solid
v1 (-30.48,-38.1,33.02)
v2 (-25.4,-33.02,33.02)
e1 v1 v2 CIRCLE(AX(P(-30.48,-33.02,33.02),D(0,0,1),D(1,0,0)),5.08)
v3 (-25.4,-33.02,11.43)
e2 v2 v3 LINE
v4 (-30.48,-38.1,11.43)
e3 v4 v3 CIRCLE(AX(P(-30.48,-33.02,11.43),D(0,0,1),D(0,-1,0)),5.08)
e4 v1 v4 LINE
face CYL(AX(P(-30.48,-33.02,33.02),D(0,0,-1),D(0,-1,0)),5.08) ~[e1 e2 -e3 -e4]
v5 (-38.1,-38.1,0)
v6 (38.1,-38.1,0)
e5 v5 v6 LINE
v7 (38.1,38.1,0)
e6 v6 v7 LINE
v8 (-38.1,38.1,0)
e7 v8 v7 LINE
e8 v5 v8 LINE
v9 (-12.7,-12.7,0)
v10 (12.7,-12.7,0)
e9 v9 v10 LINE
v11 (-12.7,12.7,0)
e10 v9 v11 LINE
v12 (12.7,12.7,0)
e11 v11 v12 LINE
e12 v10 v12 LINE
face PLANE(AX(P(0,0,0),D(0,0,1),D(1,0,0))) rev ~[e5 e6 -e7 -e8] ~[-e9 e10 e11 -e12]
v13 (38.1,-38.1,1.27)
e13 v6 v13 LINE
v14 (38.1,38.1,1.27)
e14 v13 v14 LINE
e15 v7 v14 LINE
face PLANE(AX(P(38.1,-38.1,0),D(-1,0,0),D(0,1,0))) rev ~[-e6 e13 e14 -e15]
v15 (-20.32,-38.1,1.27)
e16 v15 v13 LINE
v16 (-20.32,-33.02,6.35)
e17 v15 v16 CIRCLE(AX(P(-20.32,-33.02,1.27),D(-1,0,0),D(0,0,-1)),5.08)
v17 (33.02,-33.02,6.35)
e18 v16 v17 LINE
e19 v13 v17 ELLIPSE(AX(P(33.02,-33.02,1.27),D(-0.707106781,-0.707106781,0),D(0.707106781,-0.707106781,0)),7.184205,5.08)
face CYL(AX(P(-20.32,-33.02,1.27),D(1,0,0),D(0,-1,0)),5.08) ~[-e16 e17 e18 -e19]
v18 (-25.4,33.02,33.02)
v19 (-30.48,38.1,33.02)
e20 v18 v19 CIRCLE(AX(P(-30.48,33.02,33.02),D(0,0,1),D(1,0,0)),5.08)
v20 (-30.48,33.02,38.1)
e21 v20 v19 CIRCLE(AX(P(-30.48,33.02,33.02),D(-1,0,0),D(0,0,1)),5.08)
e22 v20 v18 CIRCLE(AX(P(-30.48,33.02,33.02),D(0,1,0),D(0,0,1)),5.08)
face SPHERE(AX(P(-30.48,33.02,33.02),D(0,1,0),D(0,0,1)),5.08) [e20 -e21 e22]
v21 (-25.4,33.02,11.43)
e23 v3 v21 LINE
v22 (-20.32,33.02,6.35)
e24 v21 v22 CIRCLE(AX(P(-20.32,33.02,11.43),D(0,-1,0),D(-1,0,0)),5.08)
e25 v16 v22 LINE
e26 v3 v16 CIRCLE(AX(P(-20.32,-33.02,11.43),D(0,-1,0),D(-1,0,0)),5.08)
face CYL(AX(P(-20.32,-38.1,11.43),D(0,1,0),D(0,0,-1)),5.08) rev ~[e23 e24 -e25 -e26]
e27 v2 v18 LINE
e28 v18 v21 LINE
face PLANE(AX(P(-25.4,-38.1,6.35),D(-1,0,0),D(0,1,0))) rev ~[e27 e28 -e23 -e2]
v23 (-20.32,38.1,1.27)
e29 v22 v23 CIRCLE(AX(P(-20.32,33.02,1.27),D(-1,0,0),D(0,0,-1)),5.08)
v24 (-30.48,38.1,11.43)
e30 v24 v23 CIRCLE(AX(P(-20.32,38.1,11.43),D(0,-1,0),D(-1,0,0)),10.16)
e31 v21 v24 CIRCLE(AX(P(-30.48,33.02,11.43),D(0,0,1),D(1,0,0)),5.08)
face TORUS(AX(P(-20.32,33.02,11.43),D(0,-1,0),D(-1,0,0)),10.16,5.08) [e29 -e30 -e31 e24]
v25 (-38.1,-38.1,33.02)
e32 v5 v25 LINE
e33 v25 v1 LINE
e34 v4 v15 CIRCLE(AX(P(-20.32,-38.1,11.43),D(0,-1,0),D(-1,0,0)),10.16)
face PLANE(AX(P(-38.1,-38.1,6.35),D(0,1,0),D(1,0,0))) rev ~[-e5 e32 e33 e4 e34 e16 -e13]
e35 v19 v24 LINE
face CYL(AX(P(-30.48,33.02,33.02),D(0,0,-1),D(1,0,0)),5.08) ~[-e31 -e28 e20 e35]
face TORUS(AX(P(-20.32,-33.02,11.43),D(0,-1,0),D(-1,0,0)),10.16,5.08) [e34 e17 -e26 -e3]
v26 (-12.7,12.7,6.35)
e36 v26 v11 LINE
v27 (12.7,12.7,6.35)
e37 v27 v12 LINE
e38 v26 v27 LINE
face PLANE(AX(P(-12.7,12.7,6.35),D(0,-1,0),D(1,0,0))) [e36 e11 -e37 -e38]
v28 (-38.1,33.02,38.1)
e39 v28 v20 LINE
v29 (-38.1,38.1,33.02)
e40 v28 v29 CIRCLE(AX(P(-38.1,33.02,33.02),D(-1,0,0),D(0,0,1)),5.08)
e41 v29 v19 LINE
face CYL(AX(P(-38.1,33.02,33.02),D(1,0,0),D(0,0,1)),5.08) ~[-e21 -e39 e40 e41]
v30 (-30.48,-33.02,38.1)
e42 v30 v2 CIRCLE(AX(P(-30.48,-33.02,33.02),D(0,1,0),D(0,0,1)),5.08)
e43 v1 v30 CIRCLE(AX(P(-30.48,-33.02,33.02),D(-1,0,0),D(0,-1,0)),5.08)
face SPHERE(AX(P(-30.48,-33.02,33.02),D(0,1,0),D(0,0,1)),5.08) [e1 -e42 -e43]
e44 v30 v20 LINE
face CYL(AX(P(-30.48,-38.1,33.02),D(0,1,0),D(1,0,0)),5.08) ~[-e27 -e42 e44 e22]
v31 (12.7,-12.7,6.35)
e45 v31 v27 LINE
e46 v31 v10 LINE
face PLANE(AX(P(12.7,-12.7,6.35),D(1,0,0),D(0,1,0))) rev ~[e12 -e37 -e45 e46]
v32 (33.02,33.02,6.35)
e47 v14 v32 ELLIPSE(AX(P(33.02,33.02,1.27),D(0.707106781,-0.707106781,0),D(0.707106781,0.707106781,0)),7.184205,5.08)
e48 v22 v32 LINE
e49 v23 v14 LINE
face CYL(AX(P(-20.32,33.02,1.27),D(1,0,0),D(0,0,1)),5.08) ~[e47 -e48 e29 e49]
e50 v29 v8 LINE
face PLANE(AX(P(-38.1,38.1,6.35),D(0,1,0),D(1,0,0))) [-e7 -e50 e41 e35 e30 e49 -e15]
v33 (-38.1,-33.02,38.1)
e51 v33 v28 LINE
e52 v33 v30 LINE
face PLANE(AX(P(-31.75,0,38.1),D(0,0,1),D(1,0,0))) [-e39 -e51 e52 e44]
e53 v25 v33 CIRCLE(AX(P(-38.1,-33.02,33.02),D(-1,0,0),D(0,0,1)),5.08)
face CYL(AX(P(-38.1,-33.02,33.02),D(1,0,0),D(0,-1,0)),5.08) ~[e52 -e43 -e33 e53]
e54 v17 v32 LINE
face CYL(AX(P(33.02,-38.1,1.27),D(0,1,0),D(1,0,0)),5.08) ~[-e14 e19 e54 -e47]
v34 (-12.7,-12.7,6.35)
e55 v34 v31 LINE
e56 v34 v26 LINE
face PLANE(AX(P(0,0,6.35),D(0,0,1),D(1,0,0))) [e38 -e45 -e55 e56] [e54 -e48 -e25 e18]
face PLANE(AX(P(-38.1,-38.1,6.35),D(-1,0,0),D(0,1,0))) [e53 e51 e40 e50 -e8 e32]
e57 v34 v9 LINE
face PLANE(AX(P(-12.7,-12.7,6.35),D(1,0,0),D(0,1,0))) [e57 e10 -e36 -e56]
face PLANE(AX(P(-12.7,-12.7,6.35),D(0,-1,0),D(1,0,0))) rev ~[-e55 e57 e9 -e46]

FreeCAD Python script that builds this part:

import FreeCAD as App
import Part
import Sketcher

V = App.Vector
Q = App.Units.Quantity


def edges_at(feature, points):
    """Names of the edges that pass closest to the given points."""
    edges = feature.Shape.Edges
    near = lambda p: min(range(len(edges)), key=lambda i: edges[i].distToShape(Part.Vertex(*p))[0])
    return sorted({f"Edge{near(p) + 1}" for p in points})

doc = App.newDocument("Part")
body = doc.addObject("PartDesign::Body", "Body")

sketch1 = body.newObject("Sketcher::SketchObject", "Sketch")
sketch1.AttachmentSupport = (doc.getObject("XY_Plane"), [""])
sketch1.MapMode = "FlatFace"
sketch1.addGeometry([
    Part.LineSegment(V(-38.1, 38.1, 0), V(-38.1, -38.1, 0)),
    Part.LineSegment(V(-38.1, -38.1, 0), V(38.1, -38.1, 0)),
    Part.LineSegment(V(38.1, -38.1, 0), V(38.1, 38.1, 0)),
    Part.LineSegment(V(38.1, 38.1, 0), V(-38.1, 38.1, 0)),
], False)
sketch1.addConstraint([
    Sketcher.Constraint("Coincident", 0, 2, 1, 1),
    Sketcher.Constraint("Coincident", 1, 2, 2, 1),
    Sketcher.Constraint("Coincident", 2, 2, 3, 1),
    Sketcher.Constraint("Coincident", 3, 2, 0, 1),
    Sketcher.Constraint("Vertical", 0),
    Sketcher.Constraint("Horizontal", 1),
    Sketcher.Constraint("Vertical", 2),
    Sketcher.Constraint("Horizontal", 3),
    Sketcher.Constraint("Symmetric", 0, 2, 2, 2, -1, 1),
    Sketcher.Constraint("Equal", 3, 0),
    Sketcher.Constraint("DistanceX", 1, 1, 1, 2, Q("3 in")),
])
pad1 = body.newObject("PartDesign::Pad", "Pad")
pad1.Profile = sketch1
pad1.Length = Q("0.25 in")

sketch2 = body.newObject("Sketcher::SketchObject", "Sketch001")
sketch2.AttachmentSupport = (doc.getObject("XY_Plane"), [""])
sketch2.MapMode = "FlatFace"
sketch2.AttachmentOffset = App.Placement(V(0, 0, 0.25 * 25.4), App.Rotation())
sketch2.addGeometry([
    Part.LineSegment(V(-12.7, 12.7, 0), V(-12.7, -12.7, 0)),
    Part.LineSegment(V(-12.7, -12.7, 0), V(12.7, -12.7, 0)),
    Part.LineSegment(V(12.7, -12.7, 0), V(12.7, 12.7, 0)),
    Part.LineSegment(V(12.7, 12.7, 0), V(-12.7, 12.7, 0)),
], False)
sketch2.addConstraint([
    Sketcher.Constraint("Coincident", 0, 2, 1, 1),
    Sketcher.Constraint("Coincident", 1, 2, 2, 1),
    Sketcher.Constraint("Coincident", 2, 2, 3, 1),
    Sketcher.Constraint("Coincident", 3, 2, 0, 1),
    Sketcher.Constraint("Vertical", 0),
    Sketcher.Constraint("Horizontal", 1),
    Sketcher.Constraint("Vertical", 2),
    Sketcher.Constraint("Horizontal", 3),
    Sketcher.Constraint("Symmetric", 0, 2, 2, 2, -1, 1),
    Sketcher.Constraint("Equal", 3, 0),
    Sketcher.Constraint("DistanceX", 1, 1, 1, 2, Q("1 in")),
])
pocket1 = body.newObject("PartDesign::Pocket", "Pocket")
pocket1.Profile = sketch2
pocket1.Length = Q("1 in")

sketch3 = body.newObject("Sketcher::SketchObject", "Sketch002")
sketch3.AttachmentSupport = (doc.getObject("XY_Plane"), [""])
sketch3.MapMode = "FlatFace"
sketch3.AttachmentOffset = App.Placement(V(0, 0, 0.25 * 25.4), App.Rotation())
sketch3.addGeometry([
    Part.LineSegment(V(-38.1, 38.1, 0), V(-38.1, -38.1, 0)),
    Part.LineSegment(V(-38.1, -38.1, 0), V(-25.4, -38.1, 0)),
    Part.LineSegment(V(-25.4, -38.1, 0), V(-25.4, 38.1, 0)),
    Part.LineSegment(V(-25.4, 38.1, 0), V(-38.1, 38.1, 0)),
], False)
sketch3.addConstraint([
    Sketcher.Constraint("Coincident", 0, 2, 1, 1),
    Sketcher.Constraint("Coincident", 1, 2, 2, 1),
    Sketcher.Constraint("Coincident", 2, 2, 3, 1),
    Sketcher.Constraint("Coincident", 3, 2, 0, 1),
    Sketcher.Constraint("Vertical", 0),
    Sketcher.Constraint("Horizontal", 1),
    Sketcher.Constraint("Vertical", 2),
    Sketcher.Constraint("Horizontal", 3),
    Sketcher.Constraint("DistanceY", 0, 2, 0, 1, Q("3 in")),
    Sketcher.Constraint("DistanceX", 1, 1, 1, 2, Q("0.5 in")),
    Sketcher.Constraint("DistanceX", 1, 2, -1, 1, Q("1 in")),
    Sketcher.Constraint("DistanceY", 0, 2, -1, 1, Q("1.5 in")),
])
pad2 = body.newObject("PartDesign::Pad", "Pad001")
pad2.Profile = sketch3
pad2.Length = Q("1.25 in")
doc.recompute()

fillet = body.newObject("PartDesign::Fillet", "Fillet")
fillet.Base = (pad2, edges_at(pad2, [(-25.4, 0, 38.1), (-25.4, 0, 6.35)]))
fillet.Radius = Q("0.2 in")
doc.recompute()

fillet2 = body.newObject("PartDesign::Fillet", "Fillet001")
fillet2.Base = (fillet, edges_at(fillet, [(8.89, -38.1, 6.35), (38.1, 0, 6.35), (8.89, 38.1, 6.35)]))
fillet2.Radius = Q("0.2 in")

doc.recompute()
